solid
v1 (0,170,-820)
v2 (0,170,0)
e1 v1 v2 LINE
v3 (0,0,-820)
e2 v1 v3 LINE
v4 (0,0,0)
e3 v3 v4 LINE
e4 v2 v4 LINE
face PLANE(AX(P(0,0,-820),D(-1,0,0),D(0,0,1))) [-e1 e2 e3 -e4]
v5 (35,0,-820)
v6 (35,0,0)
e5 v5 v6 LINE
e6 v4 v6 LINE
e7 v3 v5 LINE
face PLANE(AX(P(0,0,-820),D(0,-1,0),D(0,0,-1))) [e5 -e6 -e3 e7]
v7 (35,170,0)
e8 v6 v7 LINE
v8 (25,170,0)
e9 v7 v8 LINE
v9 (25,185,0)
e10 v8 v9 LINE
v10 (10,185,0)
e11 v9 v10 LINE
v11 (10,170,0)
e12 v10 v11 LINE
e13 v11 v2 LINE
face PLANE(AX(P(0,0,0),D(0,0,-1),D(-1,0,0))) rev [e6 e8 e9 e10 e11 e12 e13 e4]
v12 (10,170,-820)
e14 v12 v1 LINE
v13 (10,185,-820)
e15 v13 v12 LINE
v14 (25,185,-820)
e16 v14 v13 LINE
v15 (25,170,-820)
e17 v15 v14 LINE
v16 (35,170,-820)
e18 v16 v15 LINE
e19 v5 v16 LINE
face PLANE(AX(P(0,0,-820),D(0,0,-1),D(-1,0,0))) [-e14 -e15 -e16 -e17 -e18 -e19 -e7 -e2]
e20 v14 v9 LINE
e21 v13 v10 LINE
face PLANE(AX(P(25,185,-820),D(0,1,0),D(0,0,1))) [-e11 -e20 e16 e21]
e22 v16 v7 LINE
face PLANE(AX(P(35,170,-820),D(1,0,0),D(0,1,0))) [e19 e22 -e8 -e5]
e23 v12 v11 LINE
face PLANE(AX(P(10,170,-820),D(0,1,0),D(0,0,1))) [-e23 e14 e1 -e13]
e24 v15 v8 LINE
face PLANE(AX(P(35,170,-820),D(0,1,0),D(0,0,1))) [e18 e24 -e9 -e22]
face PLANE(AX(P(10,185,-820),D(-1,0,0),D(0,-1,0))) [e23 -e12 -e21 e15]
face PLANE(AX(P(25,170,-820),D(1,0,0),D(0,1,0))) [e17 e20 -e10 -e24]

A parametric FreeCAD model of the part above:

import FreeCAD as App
import Part
import Sketcher

V = App.Vector
Q = App.Units.Quantity

doc = App.newDocument("Part")
body = doc.addObject("PartDesign::Body", "Body")

sketch1 = doc.addObject("Sketcher::SketchObject", "Sketch")
body.addObject(sketch1)
sketch1.AttachmentSupport = (doc.XY_Plane, [""])
sketch1.MapMode = "FlatFace"
sketch1.addGeometry([
    Part.LineSegment(V(0, 170, 0), V(0, 0, 0)),
    Part.LineSegment(V(0, 0, 0), V(35, 0, 0)),
    Part.LineSegment(V(35, 0, 0), V(35, 170, 0)),
    Part.LineSegment(V(35, 170, 0), V(25, 170, 0)),
    Part.LineSegment(V(25, 170, 0), V(25, 185, 0)),
    Part.LineSegment(V(25, 185, 0), V(10, 185, 0)),
    Part.LineSegment(V(10, 185, 0), V(10, 170, 0)),
    Part.LineSegment(V(10, 170, 0), V(0, 170, 0)),
], False)
sketch1.addConstraint([
    Sketcher.Constraint("Coincident", 0, 2, 1, 1),
    Sketcher.Constraint("Coincident", 1, 2, 2, 1),
    Sketcher.Constraint("Coincident", 2, 2, 3, 1),
    Sketcher.Constraint("Coincident", 3, 2, 4, 1),
    Sketcher.Constraint("Coincident", 4, 2, 5, 1),
    Sketcher.Constraint("Coincident", 5, 2, 6, 1),
    Sketcher.Constraint("Coincident", 6, 2, 7, 1),
    Sketcher.Constraint("Coincident", 7, 2, 0, 1),
    Sketcher.Constraint("Vertical", 0),
    Sketcher.Constraint("Horizontal", 1),
    Sketcher.Constraint("Vertical", 2),
    Sketcher.Constraint("Horizontal", 3),
    Sketcher.Constraint("Vertical", 4),
    Sketcher.Constraint("Horizontal", 5),
    Sketcher.Constraint("Vertical", 6),
    Sketcher.Constraint("Horizontal", 7),
    Sketcher.Constraint("Coincident", 0, 2, -1, 1),
    Sketcher.Constraint("Horizontal", 3, 2, 6, 2),
    Sketcher.Constraint("Equal", 3, 7),
    Sketcher.Constraint("Equal", 5, 4),
    Sketcher.Constraint("DistanceX", 1, 1, 1, 2, Q("35 mm")),
    Sketcher.Constraint("DistanceX", 3, 2, 3, 1, Q("10 mm")),
    Sketcher.Constraint("DistanceY", 0, 2, 0, 1, Q("170 mm")),
])
pad1 = doc.addObject("PartDesign::Pad", "Pad")
body.addObject(pad1)
pad1.Profile = sketch1
pad1.Length = 820
pad1.Reversed = True

doc.recompute()
